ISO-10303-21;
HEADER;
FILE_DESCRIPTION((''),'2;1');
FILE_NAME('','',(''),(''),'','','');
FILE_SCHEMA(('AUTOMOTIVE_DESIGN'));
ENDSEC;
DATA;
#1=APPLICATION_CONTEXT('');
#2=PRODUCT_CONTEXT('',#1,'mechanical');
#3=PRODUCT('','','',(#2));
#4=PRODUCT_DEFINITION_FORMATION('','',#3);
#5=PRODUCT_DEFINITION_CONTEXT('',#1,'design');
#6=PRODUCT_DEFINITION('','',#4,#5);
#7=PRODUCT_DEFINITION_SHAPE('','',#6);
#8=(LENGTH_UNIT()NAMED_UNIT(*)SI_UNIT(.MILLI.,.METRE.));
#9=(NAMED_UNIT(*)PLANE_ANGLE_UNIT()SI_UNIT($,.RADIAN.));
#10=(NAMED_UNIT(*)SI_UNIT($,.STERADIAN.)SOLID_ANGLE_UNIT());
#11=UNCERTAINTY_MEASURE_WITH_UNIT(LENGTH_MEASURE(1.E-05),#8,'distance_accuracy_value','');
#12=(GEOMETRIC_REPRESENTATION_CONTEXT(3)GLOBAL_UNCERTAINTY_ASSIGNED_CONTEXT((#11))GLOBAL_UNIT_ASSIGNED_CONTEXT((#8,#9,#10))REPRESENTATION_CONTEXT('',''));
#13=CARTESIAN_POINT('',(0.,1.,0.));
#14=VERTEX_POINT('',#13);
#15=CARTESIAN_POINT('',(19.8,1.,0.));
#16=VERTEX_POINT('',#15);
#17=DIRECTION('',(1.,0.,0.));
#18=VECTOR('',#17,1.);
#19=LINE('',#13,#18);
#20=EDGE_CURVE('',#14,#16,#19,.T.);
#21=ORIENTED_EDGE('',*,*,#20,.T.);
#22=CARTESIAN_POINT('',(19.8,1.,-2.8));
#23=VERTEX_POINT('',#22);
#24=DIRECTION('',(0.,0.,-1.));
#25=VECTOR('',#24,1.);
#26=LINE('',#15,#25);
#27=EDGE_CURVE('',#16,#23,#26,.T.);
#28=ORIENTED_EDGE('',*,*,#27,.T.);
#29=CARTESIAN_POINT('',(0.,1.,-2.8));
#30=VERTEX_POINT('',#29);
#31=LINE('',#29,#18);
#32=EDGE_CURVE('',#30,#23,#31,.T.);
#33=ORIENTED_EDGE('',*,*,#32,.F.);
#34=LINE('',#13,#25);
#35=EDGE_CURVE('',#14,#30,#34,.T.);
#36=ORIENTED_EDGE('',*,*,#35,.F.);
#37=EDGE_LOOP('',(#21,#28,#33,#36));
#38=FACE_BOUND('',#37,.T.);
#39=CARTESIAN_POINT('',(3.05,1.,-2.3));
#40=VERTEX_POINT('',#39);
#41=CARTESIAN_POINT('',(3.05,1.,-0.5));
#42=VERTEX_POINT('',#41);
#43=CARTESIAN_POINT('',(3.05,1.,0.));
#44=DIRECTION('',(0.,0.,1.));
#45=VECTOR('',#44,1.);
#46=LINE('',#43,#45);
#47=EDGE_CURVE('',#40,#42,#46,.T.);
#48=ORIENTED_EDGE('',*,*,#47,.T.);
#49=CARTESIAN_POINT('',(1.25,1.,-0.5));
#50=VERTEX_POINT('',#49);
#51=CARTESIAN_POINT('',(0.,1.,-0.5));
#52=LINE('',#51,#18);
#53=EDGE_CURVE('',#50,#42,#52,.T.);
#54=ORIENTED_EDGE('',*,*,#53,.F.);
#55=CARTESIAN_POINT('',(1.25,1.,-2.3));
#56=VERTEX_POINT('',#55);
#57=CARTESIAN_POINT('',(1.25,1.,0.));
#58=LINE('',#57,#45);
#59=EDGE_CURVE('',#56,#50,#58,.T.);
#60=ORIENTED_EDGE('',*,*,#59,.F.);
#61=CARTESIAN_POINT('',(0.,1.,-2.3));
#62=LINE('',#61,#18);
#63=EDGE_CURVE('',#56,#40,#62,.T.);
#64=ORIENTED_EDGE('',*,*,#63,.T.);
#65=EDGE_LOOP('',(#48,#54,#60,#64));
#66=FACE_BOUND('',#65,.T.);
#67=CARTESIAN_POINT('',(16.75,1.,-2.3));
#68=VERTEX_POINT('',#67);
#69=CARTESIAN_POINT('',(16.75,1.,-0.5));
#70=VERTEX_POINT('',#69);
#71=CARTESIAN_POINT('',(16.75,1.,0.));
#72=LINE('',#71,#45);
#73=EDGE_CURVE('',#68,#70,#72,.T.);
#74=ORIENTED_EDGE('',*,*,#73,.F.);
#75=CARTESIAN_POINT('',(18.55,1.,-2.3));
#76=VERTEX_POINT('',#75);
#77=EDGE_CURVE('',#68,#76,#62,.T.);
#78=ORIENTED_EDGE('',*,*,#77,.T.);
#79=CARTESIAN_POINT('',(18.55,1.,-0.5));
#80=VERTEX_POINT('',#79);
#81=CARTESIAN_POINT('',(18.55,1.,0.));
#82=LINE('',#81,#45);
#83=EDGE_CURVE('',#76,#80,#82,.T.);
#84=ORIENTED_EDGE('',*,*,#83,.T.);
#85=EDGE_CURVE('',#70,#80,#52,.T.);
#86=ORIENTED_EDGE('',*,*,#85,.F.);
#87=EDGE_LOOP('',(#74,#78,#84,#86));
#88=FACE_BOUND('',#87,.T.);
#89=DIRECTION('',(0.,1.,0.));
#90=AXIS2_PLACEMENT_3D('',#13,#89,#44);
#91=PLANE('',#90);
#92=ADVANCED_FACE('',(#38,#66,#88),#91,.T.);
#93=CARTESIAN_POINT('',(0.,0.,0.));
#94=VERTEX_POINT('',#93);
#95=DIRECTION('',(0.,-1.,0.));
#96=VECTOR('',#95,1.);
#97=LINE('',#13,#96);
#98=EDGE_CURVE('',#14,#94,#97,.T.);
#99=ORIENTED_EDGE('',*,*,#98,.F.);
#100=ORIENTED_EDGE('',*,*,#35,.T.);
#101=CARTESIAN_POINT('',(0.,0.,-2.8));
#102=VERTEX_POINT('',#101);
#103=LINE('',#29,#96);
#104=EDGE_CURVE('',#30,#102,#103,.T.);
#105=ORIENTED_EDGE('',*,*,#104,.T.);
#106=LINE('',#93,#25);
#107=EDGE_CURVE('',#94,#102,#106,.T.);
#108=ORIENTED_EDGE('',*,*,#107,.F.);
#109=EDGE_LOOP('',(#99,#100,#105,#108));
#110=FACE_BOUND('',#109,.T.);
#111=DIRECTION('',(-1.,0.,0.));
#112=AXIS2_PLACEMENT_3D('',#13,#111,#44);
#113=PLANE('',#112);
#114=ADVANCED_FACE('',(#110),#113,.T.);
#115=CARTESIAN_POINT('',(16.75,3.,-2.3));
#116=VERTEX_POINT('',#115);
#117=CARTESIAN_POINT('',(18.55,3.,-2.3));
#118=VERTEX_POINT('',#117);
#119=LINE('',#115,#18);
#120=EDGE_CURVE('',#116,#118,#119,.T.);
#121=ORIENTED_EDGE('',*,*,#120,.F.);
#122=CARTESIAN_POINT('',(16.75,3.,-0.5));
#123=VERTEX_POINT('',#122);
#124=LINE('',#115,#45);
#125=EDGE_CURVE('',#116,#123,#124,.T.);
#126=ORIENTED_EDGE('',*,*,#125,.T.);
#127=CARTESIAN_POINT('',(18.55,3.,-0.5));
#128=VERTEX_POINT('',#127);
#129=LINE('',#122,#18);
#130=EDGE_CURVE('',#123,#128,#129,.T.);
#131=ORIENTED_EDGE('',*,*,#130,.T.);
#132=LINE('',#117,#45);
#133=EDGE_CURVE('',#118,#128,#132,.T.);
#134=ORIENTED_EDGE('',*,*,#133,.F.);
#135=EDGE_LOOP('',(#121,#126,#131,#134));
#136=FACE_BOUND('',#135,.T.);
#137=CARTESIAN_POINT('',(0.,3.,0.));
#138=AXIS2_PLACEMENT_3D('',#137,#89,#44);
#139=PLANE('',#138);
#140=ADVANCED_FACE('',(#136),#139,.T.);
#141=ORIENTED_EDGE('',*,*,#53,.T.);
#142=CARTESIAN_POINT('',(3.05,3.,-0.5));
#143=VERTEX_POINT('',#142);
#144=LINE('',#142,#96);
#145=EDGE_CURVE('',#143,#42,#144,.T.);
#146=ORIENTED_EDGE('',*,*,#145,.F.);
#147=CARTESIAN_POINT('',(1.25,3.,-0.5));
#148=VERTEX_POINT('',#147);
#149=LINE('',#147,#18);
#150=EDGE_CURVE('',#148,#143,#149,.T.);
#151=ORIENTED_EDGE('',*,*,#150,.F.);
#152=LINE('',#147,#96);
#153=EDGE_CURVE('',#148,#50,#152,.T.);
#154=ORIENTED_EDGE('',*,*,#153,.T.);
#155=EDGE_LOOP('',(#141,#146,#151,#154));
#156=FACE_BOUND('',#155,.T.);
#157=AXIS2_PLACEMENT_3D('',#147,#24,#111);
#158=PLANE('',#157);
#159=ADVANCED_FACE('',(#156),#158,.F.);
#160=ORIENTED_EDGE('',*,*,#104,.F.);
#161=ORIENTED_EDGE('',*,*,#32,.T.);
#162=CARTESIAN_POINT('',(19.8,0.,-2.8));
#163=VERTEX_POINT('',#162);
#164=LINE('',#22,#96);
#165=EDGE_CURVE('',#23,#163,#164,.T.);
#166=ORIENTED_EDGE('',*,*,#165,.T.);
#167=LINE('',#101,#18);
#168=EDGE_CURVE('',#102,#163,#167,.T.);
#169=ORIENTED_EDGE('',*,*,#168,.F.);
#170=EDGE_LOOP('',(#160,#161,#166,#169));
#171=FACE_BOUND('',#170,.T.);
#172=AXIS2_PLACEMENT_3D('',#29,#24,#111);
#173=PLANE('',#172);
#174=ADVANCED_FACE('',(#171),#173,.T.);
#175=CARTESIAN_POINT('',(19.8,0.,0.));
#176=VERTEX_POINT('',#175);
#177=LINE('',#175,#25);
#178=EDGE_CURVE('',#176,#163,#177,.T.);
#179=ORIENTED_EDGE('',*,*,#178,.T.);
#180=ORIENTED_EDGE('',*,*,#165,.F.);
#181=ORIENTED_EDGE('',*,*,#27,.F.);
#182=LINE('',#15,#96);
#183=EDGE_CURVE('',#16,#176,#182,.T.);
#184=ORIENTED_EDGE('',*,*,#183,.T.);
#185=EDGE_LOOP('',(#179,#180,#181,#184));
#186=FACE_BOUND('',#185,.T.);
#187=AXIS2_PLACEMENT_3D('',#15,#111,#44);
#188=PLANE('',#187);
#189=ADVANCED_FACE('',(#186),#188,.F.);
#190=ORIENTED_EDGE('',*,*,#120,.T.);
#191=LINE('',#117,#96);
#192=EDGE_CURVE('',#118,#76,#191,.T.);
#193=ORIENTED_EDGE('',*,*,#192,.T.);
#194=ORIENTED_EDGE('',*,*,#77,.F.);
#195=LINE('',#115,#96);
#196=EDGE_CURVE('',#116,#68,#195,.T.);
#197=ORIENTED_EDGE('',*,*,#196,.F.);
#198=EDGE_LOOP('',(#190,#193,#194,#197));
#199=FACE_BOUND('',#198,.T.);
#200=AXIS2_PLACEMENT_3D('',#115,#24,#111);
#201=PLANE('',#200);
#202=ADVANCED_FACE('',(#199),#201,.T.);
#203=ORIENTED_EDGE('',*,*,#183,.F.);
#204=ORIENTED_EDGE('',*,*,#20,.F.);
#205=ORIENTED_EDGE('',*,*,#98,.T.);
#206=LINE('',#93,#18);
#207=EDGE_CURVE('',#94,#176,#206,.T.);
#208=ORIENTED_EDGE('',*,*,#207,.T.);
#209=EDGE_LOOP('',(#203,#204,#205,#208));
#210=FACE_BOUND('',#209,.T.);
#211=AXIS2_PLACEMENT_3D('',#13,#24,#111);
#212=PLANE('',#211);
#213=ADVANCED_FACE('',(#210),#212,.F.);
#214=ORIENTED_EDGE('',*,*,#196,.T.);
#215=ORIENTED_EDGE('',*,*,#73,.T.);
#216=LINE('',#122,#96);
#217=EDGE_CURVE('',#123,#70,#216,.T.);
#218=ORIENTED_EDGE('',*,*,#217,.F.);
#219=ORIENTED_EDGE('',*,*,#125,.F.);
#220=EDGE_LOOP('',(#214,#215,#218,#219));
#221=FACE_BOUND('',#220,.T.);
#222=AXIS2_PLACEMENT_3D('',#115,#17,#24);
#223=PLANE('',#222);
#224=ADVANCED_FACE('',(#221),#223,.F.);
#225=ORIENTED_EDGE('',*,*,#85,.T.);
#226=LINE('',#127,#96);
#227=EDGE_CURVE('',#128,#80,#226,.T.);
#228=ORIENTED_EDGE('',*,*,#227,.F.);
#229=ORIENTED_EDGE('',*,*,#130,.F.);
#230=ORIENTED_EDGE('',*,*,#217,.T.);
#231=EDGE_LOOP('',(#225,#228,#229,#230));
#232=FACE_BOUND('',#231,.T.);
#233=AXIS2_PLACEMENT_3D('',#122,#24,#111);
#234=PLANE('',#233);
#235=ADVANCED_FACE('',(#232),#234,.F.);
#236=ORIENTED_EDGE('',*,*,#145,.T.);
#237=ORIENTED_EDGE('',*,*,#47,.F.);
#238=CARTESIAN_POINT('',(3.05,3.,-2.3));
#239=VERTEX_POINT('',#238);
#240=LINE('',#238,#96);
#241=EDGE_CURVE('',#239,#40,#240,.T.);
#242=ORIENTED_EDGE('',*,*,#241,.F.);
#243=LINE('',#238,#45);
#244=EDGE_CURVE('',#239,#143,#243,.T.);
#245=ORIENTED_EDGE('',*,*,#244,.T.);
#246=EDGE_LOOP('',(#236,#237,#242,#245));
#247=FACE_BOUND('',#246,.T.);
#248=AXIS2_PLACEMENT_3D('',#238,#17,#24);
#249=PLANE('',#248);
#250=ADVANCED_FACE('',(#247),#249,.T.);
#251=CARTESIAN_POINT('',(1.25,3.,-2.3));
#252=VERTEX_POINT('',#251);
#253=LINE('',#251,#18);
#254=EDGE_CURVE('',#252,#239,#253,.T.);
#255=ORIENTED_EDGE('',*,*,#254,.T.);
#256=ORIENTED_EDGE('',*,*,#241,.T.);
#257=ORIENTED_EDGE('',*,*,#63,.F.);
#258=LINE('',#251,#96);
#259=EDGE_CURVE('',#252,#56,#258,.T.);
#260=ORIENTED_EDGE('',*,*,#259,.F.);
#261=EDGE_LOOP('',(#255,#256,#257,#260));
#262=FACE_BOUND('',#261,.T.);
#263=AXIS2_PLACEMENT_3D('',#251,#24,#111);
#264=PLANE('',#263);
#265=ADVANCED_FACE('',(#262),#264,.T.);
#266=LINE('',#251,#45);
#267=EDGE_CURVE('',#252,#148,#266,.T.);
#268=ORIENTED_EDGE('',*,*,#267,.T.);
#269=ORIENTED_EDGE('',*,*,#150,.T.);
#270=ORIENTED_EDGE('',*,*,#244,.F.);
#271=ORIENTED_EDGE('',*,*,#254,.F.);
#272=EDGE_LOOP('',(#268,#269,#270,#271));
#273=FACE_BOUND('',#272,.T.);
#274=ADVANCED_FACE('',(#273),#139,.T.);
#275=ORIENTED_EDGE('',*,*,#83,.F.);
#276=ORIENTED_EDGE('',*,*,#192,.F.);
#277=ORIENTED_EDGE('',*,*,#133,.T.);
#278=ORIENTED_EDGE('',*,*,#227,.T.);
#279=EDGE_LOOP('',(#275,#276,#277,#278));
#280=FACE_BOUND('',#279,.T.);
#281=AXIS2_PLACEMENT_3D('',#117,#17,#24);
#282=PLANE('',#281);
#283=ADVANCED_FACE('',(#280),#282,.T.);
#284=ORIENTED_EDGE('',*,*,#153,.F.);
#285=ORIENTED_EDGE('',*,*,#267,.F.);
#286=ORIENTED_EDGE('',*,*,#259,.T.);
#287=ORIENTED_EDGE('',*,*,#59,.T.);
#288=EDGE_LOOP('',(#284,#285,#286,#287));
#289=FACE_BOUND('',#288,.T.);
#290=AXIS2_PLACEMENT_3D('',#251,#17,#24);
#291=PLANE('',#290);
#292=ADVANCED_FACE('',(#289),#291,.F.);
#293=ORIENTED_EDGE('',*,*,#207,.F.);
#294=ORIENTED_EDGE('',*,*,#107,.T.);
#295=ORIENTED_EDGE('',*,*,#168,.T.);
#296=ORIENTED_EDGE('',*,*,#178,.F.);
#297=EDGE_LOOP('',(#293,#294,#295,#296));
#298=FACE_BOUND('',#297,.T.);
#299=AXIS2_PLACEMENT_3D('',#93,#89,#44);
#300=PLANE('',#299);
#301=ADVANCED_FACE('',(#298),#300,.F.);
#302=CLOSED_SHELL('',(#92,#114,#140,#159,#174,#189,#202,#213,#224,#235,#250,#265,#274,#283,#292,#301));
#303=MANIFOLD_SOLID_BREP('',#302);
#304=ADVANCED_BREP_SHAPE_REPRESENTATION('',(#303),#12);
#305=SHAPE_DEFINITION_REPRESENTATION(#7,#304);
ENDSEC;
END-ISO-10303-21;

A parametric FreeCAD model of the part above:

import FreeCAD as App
import Part
import Sketcher


def add_polygon(sketch, points):
    """Adds a closed chain of lines whose ends are joined by coincident constraints."""
    first, n = sketch.GeometryCount, len(points)
    for a, b in zip(points, points[1:] + points[:1]):
        sketch.addGeometry(Part.LineSegment(App.Vector(*a, 0), App.Vector(*b, 0)), False)
    for i in range(n):
        sketch.addConstraint(Sketcher.Constraint("Coincident", first + i, 2, first + (i + 1) % n, 1))

doc = App.newDocument("Part")
body = doc.addObject("PartDesign::Body", "Body")

# Sketch on XZ plane
sketch1 = body.newObject("Sketcher::SketchObject", "Sketch")
sketch1.AttachmentSupport = (doc.getObject("XZ_Plane"), [""])
sketch1.MapMode = "FlatFace"
add_polygon(sketch1, [(0, -2.8), (0, 0), (19.8, 0), (19.8, -2.8)])  # lines 0-3
add_polygon(sketch1, [(3, -0.5), (1.2, -0.5), (1.2, -2.3), (3, -2.3)])  # lines 4-7
add_polygon(sketch1, [(18.6, -0.5), (16.8, -0.5), (16.8, -2.3), (18.6, -2.3)])  # lines 8-11
sketch1.addConstraint(Sketcher.Constraint("Vertical", 0))
sketch1.addConstraint(Sketcher.Constraint("Horizontal", 1))
sketch1.addConstraint(Sketcher.Constraint("Vertical", 2))
sketch1.addConstraint(Sketcher.Constraint("Horizontal", 3))
sketch1.addConstraint(Sketcher.Constraint("Horizontal", 4))
sketch1.addConstraint(Sketcher.Constraint("Vertical", 5))
sketch1.addConstraint(Sketcher.Constraint("Horizontal", 6))
sketch1.addConstraint(Sketcher.Constraint("Vertical", 7))
sketch1.addConstraint(Sketcher.Constraint("Horizontal", 8))
sketch1.addConstraint(Sketcher.Constraint("Vertical", 9))
sketch1.addConstraint(Sketcher.Constraint("Horizontal", 10))
sketch1.addConstraint(Sketcher.Constraint("Vertical", 11))
sketch1.addConstraint(Sketcher.Constraint("Coincident", 0, 2, -1, 1))
sketch1.addConstraint(Sketcher.Constraint("Horizontal", 7, 2, 8, 2))
sketch1.addConstraint(Sketcher.Constraint("Horizontal", 6, 2, 9, 2))
sketch1.addConstraint(Sketcher.Constraint("Equal", 6, 8))
sketch1.addConstraint(Sketcher.Constraint("Equal", 10, 5))
sketch1.addConstraint(Sketcher.Constraint("DistanceX", 1, 1, 1, 2, 19.8))
sketch1.addConstraint(Sketcher.Constraint("DistanceX", 4, 2, 4, 1, 1.8))
sketch1.addConstraint(Sketcher.Constraint("DistanceY", 0, 1, 0, 2, 2.8))
sketch1.addConstraint(Sketcher.Constraint("DistanceY", 4, 2, -1, 1, 0.5))
sketch1.addConstraint(Sketcher.Constraint("DistanceX", 7, 2, 8, 2, 13.7))
sketch1.addConstraint(Sketcher.Constraint("DistanceX", -1, 1, 4, 2, 1.25))
pad1 = body.newObject("PartDesign::Pad", "Pad")
pad1.Profile = sketch1
pad1.Length = 1
pad1.Reversed = True

# Sketch on XZ plane
sketch2 = body.newObject("Sketcher::SketchObject", "Sketch001")
sketch2.AttachmentSupport = (doc.getObject("XZ_Plane"), [""])
sketch2.MapMode = "FlatFace"
add_polygon(sketch2, [(1.2, -2.3), (1.2, -0.5), (3, -0.5), (3, -2.3)])  # lines 0-3
add_polygon(sketch2, [(16.8, -2.3), (16.8, -0.5), (18.6, -0.5), (18.6, -2.3)])  # lines 4-7
sketch2.addConstraint(Sketcher.Constraint("Vertical", 0))
sketch2.addConstraint(Sketcher.Constraint("Horizontal", 1))
sketch2.addConstraint(Sketcher.Constraint("Vertical", 2))
sketch2.addConstraint(Sketcher.Constraint("Horizontal", 3))
sketch2.addConstraint(Sketcher.Constraint("Vertical", 4))
sketch2.addConstraint(Sketcher.Constraint("Horizontal", 5))
sketch2.addConstraint(Sketcher.Constraint("Vertical", 6))
sketch2.addConstraint(Sketcher.Constraint("Horizontal", 7))
sketch2.addConstraint(Sketcher.Constraint("Horizontal", 1, 2, 4, 2))
sketch2.addConstraint(Sketcher.Constraint("Horizontal", 3, 2, 6, 2))
sketch2.addConstraint(Sketcher.Constraint("Equal", 3, 5))
sketch2.addConstraint(Sketcher.Constraint("Equal", 7, 0))
sketch2.addConstraint(Sketcher.Constraint("DistanceX", 1, 1, 1, 2, 1.8))
sketch2.addConstraint(Sketcher.Constraint("DistanceY", 0, 2, -1, 1, 0.5))
sketch2.addConstraint(Sketcher.Constraint("DistanceX", 1, 2, 4, 2, 13.7))
sketch2.addConstraint(Sketcher.Constraint("DistanceX", -1, 1, 0, 2, 1.25))
pad2 = body.newObject("PartDesign::Pad", "Pad001")
pad2.Profile = sketch2
pad2.Length = 3
pad2.Reversed = True

doc.recompute()
